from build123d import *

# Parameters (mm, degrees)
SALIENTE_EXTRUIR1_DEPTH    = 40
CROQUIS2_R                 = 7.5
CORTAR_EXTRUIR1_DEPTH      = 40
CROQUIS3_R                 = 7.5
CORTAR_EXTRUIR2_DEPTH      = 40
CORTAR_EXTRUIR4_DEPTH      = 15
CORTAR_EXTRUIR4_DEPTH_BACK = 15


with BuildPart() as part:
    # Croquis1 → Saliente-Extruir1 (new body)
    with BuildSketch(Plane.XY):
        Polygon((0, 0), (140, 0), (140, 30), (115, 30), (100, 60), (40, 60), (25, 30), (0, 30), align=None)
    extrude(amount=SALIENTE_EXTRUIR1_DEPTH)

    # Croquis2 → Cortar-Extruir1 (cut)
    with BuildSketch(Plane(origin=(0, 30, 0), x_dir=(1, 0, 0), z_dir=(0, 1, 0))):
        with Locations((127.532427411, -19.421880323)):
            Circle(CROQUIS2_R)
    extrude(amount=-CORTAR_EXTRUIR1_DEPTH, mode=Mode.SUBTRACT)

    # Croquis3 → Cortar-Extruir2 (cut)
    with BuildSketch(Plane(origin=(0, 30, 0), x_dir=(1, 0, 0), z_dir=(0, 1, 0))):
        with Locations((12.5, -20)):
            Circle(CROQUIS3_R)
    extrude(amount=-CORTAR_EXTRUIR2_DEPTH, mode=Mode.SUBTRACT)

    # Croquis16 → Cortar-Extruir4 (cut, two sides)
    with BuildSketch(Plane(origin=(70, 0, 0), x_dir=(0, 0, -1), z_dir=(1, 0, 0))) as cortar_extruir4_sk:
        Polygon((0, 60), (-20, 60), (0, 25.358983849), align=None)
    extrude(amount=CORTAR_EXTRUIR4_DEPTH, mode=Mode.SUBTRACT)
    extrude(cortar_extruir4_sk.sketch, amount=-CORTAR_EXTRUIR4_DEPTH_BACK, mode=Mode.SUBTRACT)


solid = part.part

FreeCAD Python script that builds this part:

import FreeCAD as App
import Part
import Sketcher
from FreeCAD import Vector
Q = App.Units.Quantity


def add_polygon(sketch, points):
    """Adds a closed chain of lines whose ends are joined by coincident constraints."""
    first, n = sketch.GeometryCount, len(points)
    for a, b in zip(points, points[1:] + points[:1]):
        sketch.addGeometry(Part.LineSegment(App.Vector(*a, 0), App.Vector(*b, 0)), False)
    for i in range(n):
        sketch.addConstraint(Sketcher.Constraint("Coincident", first + i, 2, first + (i + 1) % n, 1))

doc = App.newDocument("Part")
body = doc.addObject("PartDesign::Body", "Body")

sketch1 = doc.addObject("Sketcher::SketchObject", "Sketch")
body.addObject(sketch1)
sketch1.AttachmentSupport = (doc.XY_Plane, [""])
sketch1.MapMode = "FlatFace"
add_polygon(sketch1, [(0, 0), (140, 0), (140, 30), (115, 30), (100, 60), (40, 60), (25, 30), (0, 30)])
sketch1.addConstraint([
    Sketcher.Constraint("Horizontal", 0),
    Sketcher.Constraint("Vertical", 1),
    Sketcher.Constraint("Horizontal", 2),
    Sketcher.Constraint("Horizontal", 4),
    Sketcher.Constraint("Horizontal", 6),
    Sketcher.Constraint("Vertical", 7),
    Sketcher.Constraint("Coincident", 7, 2, -1, 1),
    Sketcher.Constraint("Horizontal", 2, 2, 5, 2),
    Sketcher.Constraint("Equal", 2, 6),
    Sketcher.Constraint("Equal", 3, 5),
    Sketcher.Constraint("DistanceX", 0, 1, 0, 2, Q("140 mm")),
    Sketcher.Constraint("DistanceX", 2, 2, 2, 1, Q("25 mm")),
    Sketcher.Constraint("DistanceX", 4, 2, 4, 1, Q("60 mm")),
    Sketcher.Constraint("DistanceY", 1, 1, 1, 2, Q("30 mm")),
    Sketcher.Constraint("DistanceY", -1, 1, 3, 2, Q("60 mm")),
])
pad1 = doc.addObject("PartDesign::Pad", "Pad")
body.addObject(pad1)
pad1.Profile = sketch1
pad1.Length = 40

sketch2 = doc.addObject("Sketcher::SketchObject", "Sketch001")
body.addObject(sketch2)
sketch2.AttachmentSupport = (doc.XZ_Plane, [""])
sketch2.MapMode = "FlatFace"
sketch2.AttachmentOffset = App.Placement(Vector(0, 0, -30), App.Rotation())
sketch2.addGeometry(Part.Circle(Vector(127.532427, 19.42188, 0), Vector(0, 0, 1), 7.5), False)
sketch2.addConstraint([
    Sketcher.Constraint("Diameter", 0, Q("15 mm")),
    Sketcher.Constraint("DistanceY", -1, 1, 0, 3, Q("19.42188 mm")),
    Sketcher.Constraint("DistanceX", -1, 1, 0, 3, Q("127.532427 mm")),
])
pocket1 = doc.addObject("PartDesign::Pocket", "Pocket")
body.addObject(pocket1)
pocket1.Profile = sketch2
pocket1.Length = 40
pocket1.Reversed = True

sketch3 = doc.addObject("Sketcher::SketchObject", "Sketch002")
body.addObject(sketch3)
sketch3.AttachmentSupport = (doc.XZ_Plane, [""])
sketch3.MapMode = "FlatFace"
sketch3.AttachmentOffset = App.Placement(Vector(0, 0, -30), App.Rotation())
sketch3.addGeometry(Part.Circle(Vector(12.5, 20, 0), Vector(0, 0, 1), 7.5), False)
sketch3.addConstraint([
    Sketcher.Constraint("Diameter", 0, Q("15 mm")),
    Sketcher.Constraint("DistanceY", -1, 1, 0, 3, Q("20 mm")),
    Sketcher.Constraint("DistanceX", -1, 1, 0, 3, Q("12.5 mm")),
])
pocket2 = doc.addObject("PartDesign::Pocket", "Pocket001")
body.addObject(pocket2)
pocket2.Profile = sketch3
pocket2.Length = 40
pocket2.Reversed = True

sketch4 = doc.addObject("Sketcher::SketchObject", "Sketch003")
body.addObject(sketch4)
sketch4.AttachmentSupport = (doc.YZ_Plane, [""])
sketch4.MapMode = "FlatFace"
sketch4.AttachmentOffset = App.Placement(Vector(0, 0, 70), App.Rotation())
add_polygon(sketch4, [(60, 0), (60, 20), (25.358984, 0)])
sketch4.addConstraint([
    Sketcher.Constraint("Vertical", 0),
    Sketcher.Constraint("Horizontal", 2),
    Sketcher.Constraint("PointOnObject", 1, 2, -1),
    Sketcher.Constraint("DistanceY", 0, 1, 0, 2, Q("20 mm")),
    Sketcher.Constraint("Angle", 1, Q("-150 deg")),
    Sketcher.Constraint("DistanceX", -1, 1, 0, 2, Q("60 mm")),
])
pocket3 = doc.addObject("PartDesign::Pocket", "Pocket002")
body.addObject(pocket3)
pocket3.Profile = sketch4
pocket3.Type = "TwoLengths"
pocket3.Length = 15
pocket3.Length2 = 15
pocket3.Reversed = True

doc.recompute()
